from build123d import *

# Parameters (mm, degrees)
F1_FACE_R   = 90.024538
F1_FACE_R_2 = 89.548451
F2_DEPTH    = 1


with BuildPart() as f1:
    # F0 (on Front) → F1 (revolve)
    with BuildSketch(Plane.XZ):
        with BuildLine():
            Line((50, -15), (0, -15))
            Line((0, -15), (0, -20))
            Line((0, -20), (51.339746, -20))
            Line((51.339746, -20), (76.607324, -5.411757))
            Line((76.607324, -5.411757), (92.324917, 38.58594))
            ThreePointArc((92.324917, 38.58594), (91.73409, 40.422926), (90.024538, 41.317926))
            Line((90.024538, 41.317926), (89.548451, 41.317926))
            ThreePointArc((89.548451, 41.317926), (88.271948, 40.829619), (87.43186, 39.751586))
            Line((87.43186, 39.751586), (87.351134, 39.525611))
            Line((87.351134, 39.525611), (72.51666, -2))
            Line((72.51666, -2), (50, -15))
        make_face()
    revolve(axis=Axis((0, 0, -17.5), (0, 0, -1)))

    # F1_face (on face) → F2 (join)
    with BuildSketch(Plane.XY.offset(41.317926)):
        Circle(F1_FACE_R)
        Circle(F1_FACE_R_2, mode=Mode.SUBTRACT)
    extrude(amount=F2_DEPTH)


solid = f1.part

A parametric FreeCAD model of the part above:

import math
import FreeCAD as App
import Part
import Sketcher
from FreeCAD import Vector
Q = App.Units.Quantity

doc = App.newDocument("Part")
body = doc.addObject("PartDesign::Body", "Body")

sketch1 = body.newObject("Sketcher::SketchObject", "Sketch")
sketch1.AttachmentSupport = (doc.getObject("XZ_Plane"), [""])
sketch1.MapMode = "FlatFace"
sketch1.addGeometry(Part.LineSegment(Vector(50, -15, 0), Vector(0, -15, 0)), False)
sketch1.addGeometry(Part.LineSegment(Vector(0, -15, 0), Vector(0, -20, 0)), False)
sketch1.addGeometry(Part.LineSegment(Vector(0, -20, 0), Vector(51.34, -20, 0)), False)
sketch1.addGeometry(Part.LineSegment(Vector(51.34, -20, 0), Vector(76.61, -5.41, 0)), False)
sketch1.addGeometry(Part.LineSegment(Vector(76.61, -5.41, 0), Vector(92.32, 38.59, 0)), False)
sketch1.addGeometry(Part.ArcOfCircle(Part.Circle(Vector(89.79, 38.78, 0), Vector(0, 0, 1), 2.55), math.radians(-4), math.radians(85)), False)
sketch1.addGeometry(Part.LineSegment(Vector(90.02, 41.32, 0), Vector(89.55, 41.32, 0)), False)
sketch1.addGeometry(Part.ArcOfCircle(Part.Circle(Vector(89.79, 38.78, 0), Vector(0, 0, 1), 2.55), math.radians(95), math.radians(158)), False)
sketch1.addGeometry(Part.LineSegment(Vector(87.43, 39.75, 0), Vector(87.35, 39.53, 0)), False)
sketch1.addGeometry(Part.LineSegment(Vector(87.35, 39.53, 0), Vector(72.52, -2, 0)), False)
sketch1.addGeometry(Part.LineSegment(Vector(72.52, -2, 0), Vector(50, -15, 0)), False)
sketch1.addConstraint(Sketcher.Constraint("Coincident", 0, 2, 1, 1))
sketch1.addConstraint(Sketcher.Constraint("Coincident", 1, 2, 2, 1))
sketch1.addConstraint(Sketcher.Constraint("Coincident", 2, 2, 3, 1))
sketch1.addConstraint(Sketcher.Constraint("Coincident", 3, 2, 4, 1))
sketch1.addConstraint(Sketcher.Constraint("Coincident", 4, 2, 5, 1))
sketch1.addConstraint(Sketcher.Constraint("Coincident", 5, 2, 6, 1))
sketch1.addConstraint(Sketcher.Constraint("Coincident", 6, 2, 7, 1))
sketch1.addConstraint(Sketcher.Constraint("Coincident", 7, 2, 8, 1))
sketch1.addConstraint(Sketcher.Constraint("Coincident", 8, 2, 9, 1))
sketch1.addConstraint(Sketcher.Constraint("Coincident", 9, 2, 10, 1))
sketch1.addConstraint(Sketcher.Constraint("Coincident", 10, 2, 0, 1))
sketch1.addConstraint(Sketcher.Constraint("Horizontal", 0))
sketch1.addConstraint(Sketcher.Constraint("Vertical", 1))
sketch1.addConstraint(Sketcher.Constraint("Horizontal", 2))
sketch1.addConstraint(Sketcher.Constraint("Horizontal", 6))
sketch1.addConstraint(Sketcher.Constraint("Coincident", 7, 3, 5, 3))
sketch1.addConstraint(Sketcher.Constraint("Equal", 5, 7))
sketch1.addConstraint(Sketcher.Constraint("PointOnObject", 0, 2, -2))
sketch1.addConstraint(Sketcher.Constraint("Parallel", 4, 9))
sketch1.addConstraint(Sketcher.Constraint("Parallel", 3, 10))
sketch1.addConstraint(Sketcher.Constraint("DistanceX", 0, 2, 0, 1, Q("50 mm")))
sketch1.addConstraint(Sketcher.Constraint("DistanceY", 1, 2, 1, 1, Q("5 mm")))
sketch1.addConstraint(Sketcher.Constraint("Angle", 3, Q("30 deg")))
sketch1.addConstraint(Sketcher.Constraint("Distance", 10, Q("26 mm")))
sketch1.addConstraint(Sketcher.Constraint("DistanceY", 0, 2, -1, 1, Q("15 mm")))
sketch1.addConstraint(Sketcher.Constraint("Radius", 5, Q("2.546061 mm")))
sketch1.addConstraint(Sketcher.Constraint("Distance", 8, Q("0.239961 mm")))
sketch1.addConstraint(Sketcher.Constraint("Distance", 9, Q("44.095782 mm")))
sketch1.addConstraint(Sketcher.Constraint("DistanceX", 2, 1, 2, 2, Q("51.339746 mm")))
sketch1.addConstraint(Sketcher.Constraint("DistanceX", 6, 2, 6, 1, Q("0.476087 mm")))
sketch1.addConstraint(Sketcher.Constraint("DistanceY", -1, 1, 7, 3, Q("38.783019 mm")))
sketch1.addConstraint(Sketcher.Constraint("DistanceY", -1, 1, 4, 2, Q("38.58594 mm")))
sketch1.addConstraint(Sketcher.Constraint("DistanceX", -1, 1, 5, 2, Q("90.024538 mm")))
sketch1.addConstraint(Sketcher.Constraint("DistanceY", -1, 1, 8, 2, Q("39.525611 mm")))
revolution = body.newObject("PartDesign::Revolution", "Revolution")
revolution.Profile = sketch1
revolution.ReferenceAxis = (sketch1, ["V_Axis"])
revolution.Angle = 360

sketch2 = body.newObject("Sketcher::SketchObject", "Sketch001")
sketch2.AttachmentSupport = (doc.getObject("XY_Plane"), [""])
sketch2.MapMode = "FlatFace"
sketch2.AttachmentOffset = App.Placement(Vector(0, 0, 41.317926), App.Rotation())
sketch2.addGeometry(Part.Circle(Vector(0, 0, 0), Vector(0, 0, 1), 90), False)
sketch2.addGeometry(Part.Circle(Vector(0, 0, 0), Vector(0, 0, 1), 90), False)
sketch2.addConstraint(Sketcher.Constraint("Coincident", 0, 3, -1, 1))
sketch2.addConstraint(Sketcher.Constraint("Coincident", 1, 3, -1, 1))
sketch2.addConstraint(Sketcher.Constraint("Diameter", 1, Q("179.096902 mm")))
sketch2.addConstraint(Sketcher.Constraint("Diameter", 0, Q("180.049076 mm")))
pad1 = body.newObject("PartDesign::Pad", "Pad")
pad1.Profile = sketch2
pad1.Length = 1

doc.recompute()
